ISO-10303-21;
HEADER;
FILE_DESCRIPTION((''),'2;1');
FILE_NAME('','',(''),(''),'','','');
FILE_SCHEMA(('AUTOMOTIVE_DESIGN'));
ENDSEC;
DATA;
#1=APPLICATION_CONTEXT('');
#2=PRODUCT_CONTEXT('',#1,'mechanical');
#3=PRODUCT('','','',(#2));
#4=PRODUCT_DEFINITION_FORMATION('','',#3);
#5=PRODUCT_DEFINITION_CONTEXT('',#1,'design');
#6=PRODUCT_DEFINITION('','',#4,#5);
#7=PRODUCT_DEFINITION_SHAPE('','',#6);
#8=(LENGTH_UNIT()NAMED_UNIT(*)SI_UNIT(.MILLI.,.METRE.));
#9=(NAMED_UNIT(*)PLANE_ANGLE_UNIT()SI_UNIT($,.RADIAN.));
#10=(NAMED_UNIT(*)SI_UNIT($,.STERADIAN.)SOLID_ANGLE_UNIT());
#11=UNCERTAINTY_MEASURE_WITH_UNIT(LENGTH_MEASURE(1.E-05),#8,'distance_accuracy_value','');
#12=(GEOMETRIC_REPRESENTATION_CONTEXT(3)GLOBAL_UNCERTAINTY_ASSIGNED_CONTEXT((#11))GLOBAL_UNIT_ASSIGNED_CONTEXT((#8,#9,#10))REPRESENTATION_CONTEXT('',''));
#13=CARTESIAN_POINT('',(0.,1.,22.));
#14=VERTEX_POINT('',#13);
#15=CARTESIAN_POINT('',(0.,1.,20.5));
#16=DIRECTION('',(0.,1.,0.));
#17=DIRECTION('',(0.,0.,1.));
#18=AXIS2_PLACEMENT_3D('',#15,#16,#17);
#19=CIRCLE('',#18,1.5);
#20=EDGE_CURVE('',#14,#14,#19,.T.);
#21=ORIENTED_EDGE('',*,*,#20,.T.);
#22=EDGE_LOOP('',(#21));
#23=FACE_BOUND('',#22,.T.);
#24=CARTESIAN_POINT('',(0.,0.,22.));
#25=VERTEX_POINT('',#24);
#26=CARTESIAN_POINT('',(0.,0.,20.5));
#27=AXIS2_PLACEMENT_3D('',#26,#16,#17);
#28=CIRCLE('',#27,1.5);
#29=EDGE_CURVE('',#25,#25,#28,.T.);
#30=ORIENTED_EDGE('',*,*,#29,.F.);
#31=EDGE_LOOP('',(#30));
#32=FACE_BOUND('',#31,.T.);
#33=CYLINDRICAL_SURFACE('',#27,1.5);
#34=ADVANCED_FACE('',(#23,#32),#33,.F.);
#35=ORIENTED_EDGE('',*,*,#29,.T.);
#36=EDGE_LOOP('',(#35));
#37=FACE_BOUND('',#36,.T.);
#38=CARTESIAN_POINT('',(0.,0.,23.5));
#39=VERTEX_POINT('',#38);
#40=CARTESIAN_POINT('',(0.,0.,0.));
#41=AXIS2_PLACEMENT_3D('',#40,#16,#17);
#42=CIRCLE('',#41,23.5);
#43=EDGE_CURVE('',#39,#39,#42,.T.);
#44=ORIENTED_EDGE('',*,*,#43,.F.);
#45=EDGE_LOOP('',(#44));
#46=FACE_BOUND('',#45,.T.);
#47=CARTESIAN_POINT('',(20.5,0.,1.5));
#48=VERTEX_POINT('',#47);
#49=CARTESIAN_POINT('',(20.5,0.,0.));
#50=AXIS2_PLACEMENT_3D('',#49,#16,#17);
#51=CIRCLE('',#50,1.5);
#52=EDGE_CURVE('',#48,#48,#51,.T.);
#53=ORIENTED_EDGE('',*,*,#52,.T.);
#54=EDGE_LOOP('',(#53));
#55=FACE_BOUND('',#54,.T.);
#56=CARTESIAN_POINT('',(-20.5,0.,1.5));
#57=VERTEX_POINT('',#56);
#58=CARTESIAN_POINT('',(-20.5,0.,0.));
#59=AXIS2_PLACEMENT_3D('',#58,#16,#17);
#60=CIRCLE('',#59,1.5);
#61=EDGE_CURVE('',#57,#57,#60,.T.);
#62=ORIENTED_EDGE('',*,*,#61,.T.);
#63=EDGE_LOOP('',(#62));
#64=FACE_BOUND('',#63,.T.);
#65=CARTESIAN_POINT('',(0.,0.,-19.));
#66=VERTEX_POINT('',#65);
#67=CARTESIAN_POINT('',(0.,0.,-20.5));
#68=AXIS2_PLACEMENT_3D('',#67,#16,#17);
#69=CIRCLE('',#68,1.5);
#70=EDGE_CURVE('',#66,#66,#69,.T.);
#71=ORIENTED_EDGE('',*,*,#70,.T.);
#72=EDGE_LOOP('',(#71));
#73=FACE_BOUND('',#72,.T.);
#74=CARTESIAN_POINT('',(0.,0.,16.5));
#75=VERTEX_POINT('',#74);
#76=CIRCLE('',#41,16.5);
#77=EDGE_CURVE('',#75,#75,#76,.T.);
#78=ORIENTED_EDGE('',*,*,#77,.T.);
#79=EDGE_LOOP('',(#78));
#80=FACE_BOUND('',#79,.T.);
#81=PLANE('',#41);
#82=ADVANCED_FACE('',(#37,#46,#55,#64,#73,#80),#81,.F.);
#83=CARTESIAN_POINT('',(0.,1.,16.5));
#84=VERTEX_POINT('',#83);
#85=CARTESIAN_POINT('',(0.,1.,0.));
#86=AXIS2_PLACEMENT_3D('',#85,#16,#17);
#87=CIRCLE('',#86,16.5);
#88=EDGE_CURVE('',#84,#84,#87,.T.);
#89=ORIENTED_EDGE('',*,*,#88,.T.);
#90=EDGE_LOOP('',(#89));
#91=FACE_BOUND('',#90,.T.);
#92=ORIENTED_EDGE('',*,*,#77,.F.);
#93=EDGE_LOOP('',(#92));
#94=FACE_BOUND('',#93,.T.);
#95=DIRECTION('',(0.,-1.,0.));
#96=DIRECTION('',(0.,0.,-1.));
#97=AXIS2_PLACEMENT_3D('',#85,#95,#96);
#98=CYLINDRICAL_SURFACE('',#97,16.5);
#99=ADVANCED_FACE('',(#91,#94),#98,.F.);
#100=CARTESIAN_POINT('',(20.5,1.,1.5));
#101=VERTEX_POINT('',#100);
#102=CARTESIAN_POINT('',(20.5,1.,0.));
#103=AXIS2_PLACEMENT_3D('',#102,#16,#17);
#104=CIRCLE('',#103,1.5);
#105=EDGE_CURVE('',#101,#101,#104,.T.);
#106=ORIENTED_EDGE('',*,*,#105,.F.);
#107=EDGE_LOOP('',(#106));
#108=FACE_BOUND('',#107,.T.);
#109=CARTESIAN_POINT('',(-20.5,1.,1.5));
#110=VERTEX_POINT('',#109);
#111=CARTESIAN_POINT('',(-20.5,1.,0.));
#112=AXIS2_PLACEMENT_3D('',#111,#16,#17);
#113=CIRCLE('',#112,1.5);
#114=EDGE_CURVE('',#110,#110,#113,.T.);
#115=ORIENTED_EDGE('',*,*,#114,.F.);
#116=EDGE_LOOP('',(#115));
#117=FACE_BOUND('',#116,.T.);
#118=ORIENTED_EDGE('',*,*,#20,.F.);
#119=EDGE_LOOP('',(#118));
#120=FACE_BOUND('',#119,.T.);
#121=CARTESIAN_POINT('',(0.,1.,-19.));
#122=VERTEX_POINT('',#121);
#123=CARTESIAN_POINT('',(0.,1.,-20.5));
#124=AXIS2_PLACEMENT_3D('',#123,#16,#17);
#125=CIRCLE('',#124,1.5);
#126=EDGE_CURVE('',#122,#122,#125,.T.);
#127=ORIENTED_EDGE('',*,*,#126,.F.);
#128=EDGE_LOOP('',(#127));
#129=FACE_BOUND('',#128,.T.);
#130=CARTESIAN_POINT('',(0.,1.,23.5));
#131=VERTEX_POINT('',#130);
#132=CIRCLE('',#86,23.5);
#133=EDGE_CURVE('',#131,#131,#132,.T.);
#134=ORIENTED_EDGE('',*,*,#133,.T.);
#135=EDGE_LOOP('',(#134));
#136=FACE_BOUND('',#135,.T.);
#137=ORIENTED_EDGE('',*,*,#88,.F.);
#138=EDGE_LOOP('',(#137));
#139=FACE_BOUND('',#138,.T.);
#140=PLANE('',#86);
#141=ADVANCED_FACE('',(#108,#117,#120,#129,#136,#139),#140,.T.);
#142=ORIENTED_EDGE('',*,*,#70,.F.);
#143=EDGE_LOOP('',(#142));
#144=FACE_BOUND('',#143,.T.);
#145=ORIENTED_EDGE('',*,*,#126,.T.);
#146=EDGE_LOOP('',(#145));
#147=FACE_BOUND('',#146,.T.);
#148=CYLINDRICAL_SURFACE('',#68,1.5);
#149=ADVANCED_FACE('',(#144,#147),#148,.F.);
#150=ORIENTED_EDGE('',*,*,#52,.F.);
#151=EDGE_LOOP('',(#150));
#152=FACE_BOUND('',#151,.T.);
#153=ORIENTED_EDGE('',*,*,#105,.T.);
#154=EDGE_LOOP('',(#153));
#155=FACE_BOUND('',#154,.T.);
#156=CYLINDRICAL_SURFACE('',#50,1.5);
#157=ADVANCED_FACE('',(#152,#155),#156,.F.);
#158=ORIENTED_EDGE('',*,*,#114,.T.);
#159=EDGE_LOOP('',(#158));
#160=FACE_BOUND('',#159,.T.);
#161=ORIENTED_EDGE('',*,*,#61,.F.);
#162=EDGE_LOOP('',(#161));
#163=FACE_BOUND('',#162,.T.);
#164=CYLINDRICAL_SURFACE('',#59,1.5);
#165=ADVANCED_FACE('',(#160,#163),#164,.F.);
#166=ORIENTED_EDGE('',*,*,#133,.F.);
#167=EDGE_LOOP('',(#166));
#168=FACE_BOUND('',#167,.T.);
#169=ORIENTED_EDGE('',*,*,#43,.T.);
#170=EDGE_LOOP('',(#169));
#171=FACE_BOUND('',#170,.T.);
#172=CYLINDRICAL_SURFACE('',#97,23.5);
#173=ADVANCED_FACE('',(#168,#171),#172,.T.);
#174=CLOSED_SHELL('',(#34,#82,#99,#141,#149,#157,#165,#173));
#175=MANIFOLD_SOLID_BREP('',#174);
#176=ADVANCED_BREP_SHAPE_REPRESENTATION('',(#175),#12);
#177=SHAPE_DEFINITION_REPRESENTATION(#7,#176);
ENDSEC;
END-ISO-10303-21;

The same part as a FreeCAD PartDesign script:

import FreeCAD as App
import Part
import Sketcher
Q = App.Units.Quantity

doc = App.newDocument("Part")
body = doc.addObject("PartDesign::Body", "Body")

# Sketch on XZ plane
sketch1 = body.newObject("Sketcher::SketchObject", "Sketch")
sketch1.AttachmentSupport = (doc.getObject("XZ_Plane"), [""])
sketch1.MapMode = "FlatFace"
sketch1.addGeometry([
    Part.Circle(App.Vector(0, 0, 0), App.Vector(0, 0, 1), 24),
    Part.Circle(App.Vector(0, 0, 0), App.Vector(0, 0, 1), 16),
], False)
sketch1.addConstraint([
    Sketcher.Constraint("Coincident", 0, 3, -1, 1),
    Sketcher.Constraint("Coincident", 1, 3, -1, 1),
    Sketcher.Constraint("Diameter", 0, Q("47 mm")),
    Sketcher.Constraint("Diameter", 1, Q("33 mm")),
])
pad1 = body.newObject("PartDesign::Pad", "Pad")
pad1.Profile = sketch1
pad1.Length = 1
pad1.Reversed = True

# Sketch on XZ plane
sketch2 = body.newObject("Sketcher::SketchObject", "Sketch001")
sketch2.AttachmentSupport = (doc.getObject("XZ_Plane"), [""])
sketch2.MapMode = "FlatFace"
sketch2.AttachmentOffset = App.Placement(App.Vector(0, 0, -1), App.Rotation())
sketch2.addGeometry([
    Part.Circle(App.Vector(20.5, 0, 0), App.Vector(0, 0, 1), 1.5),
    Part.Circle(App.Vector(0, 20.5, 0), App.Vector(0, 0, 1), 1.5),
    Part.Circle(App.Vector(-20.5, 0, 0), App.Vector(0, 0, 1), 1.5),
    Part.Circle(App.Vector(0, -20.5, 0), App.Vector(0, 0, 1), 1.5),
], False)
sketch2.addConstraint([
    Sketcher.Constraint("Equal", 0, 1),
    Sketcher.Constraint("Equal", 1, 2),
    Sketcher.Constraint("Equal", 2, 3),
    Sketcher.Constraint("Symmetric", 0, 3, 2, 3, -1, 1),
    Sketcher.Constraint("Symmetric", 1, 3, 3, 3, -1, 1),
    Sketcher.Constraint("PointOnObject", 0, 3, -1),
    Sketcher.Constraint("PointOnObject", 1, 3, -2),
    Sketcher.Constraint("Diameter", 0, Q("3 mm")),
    Sketcher.Constraint("DistanceX", 2, 3, 0, 3, Q("41 mm")),
    Sketcher.Constraint("DistanceY", 3, 3, 1, 3, Q("41 mm")),
])
pocket1 = body.newObject("PartDesign::Pocket", "Pocket")
pocket1.Profile = sketch2
pocket1.Length = 1
pocket1.Reversed = True

doc.recompute()
